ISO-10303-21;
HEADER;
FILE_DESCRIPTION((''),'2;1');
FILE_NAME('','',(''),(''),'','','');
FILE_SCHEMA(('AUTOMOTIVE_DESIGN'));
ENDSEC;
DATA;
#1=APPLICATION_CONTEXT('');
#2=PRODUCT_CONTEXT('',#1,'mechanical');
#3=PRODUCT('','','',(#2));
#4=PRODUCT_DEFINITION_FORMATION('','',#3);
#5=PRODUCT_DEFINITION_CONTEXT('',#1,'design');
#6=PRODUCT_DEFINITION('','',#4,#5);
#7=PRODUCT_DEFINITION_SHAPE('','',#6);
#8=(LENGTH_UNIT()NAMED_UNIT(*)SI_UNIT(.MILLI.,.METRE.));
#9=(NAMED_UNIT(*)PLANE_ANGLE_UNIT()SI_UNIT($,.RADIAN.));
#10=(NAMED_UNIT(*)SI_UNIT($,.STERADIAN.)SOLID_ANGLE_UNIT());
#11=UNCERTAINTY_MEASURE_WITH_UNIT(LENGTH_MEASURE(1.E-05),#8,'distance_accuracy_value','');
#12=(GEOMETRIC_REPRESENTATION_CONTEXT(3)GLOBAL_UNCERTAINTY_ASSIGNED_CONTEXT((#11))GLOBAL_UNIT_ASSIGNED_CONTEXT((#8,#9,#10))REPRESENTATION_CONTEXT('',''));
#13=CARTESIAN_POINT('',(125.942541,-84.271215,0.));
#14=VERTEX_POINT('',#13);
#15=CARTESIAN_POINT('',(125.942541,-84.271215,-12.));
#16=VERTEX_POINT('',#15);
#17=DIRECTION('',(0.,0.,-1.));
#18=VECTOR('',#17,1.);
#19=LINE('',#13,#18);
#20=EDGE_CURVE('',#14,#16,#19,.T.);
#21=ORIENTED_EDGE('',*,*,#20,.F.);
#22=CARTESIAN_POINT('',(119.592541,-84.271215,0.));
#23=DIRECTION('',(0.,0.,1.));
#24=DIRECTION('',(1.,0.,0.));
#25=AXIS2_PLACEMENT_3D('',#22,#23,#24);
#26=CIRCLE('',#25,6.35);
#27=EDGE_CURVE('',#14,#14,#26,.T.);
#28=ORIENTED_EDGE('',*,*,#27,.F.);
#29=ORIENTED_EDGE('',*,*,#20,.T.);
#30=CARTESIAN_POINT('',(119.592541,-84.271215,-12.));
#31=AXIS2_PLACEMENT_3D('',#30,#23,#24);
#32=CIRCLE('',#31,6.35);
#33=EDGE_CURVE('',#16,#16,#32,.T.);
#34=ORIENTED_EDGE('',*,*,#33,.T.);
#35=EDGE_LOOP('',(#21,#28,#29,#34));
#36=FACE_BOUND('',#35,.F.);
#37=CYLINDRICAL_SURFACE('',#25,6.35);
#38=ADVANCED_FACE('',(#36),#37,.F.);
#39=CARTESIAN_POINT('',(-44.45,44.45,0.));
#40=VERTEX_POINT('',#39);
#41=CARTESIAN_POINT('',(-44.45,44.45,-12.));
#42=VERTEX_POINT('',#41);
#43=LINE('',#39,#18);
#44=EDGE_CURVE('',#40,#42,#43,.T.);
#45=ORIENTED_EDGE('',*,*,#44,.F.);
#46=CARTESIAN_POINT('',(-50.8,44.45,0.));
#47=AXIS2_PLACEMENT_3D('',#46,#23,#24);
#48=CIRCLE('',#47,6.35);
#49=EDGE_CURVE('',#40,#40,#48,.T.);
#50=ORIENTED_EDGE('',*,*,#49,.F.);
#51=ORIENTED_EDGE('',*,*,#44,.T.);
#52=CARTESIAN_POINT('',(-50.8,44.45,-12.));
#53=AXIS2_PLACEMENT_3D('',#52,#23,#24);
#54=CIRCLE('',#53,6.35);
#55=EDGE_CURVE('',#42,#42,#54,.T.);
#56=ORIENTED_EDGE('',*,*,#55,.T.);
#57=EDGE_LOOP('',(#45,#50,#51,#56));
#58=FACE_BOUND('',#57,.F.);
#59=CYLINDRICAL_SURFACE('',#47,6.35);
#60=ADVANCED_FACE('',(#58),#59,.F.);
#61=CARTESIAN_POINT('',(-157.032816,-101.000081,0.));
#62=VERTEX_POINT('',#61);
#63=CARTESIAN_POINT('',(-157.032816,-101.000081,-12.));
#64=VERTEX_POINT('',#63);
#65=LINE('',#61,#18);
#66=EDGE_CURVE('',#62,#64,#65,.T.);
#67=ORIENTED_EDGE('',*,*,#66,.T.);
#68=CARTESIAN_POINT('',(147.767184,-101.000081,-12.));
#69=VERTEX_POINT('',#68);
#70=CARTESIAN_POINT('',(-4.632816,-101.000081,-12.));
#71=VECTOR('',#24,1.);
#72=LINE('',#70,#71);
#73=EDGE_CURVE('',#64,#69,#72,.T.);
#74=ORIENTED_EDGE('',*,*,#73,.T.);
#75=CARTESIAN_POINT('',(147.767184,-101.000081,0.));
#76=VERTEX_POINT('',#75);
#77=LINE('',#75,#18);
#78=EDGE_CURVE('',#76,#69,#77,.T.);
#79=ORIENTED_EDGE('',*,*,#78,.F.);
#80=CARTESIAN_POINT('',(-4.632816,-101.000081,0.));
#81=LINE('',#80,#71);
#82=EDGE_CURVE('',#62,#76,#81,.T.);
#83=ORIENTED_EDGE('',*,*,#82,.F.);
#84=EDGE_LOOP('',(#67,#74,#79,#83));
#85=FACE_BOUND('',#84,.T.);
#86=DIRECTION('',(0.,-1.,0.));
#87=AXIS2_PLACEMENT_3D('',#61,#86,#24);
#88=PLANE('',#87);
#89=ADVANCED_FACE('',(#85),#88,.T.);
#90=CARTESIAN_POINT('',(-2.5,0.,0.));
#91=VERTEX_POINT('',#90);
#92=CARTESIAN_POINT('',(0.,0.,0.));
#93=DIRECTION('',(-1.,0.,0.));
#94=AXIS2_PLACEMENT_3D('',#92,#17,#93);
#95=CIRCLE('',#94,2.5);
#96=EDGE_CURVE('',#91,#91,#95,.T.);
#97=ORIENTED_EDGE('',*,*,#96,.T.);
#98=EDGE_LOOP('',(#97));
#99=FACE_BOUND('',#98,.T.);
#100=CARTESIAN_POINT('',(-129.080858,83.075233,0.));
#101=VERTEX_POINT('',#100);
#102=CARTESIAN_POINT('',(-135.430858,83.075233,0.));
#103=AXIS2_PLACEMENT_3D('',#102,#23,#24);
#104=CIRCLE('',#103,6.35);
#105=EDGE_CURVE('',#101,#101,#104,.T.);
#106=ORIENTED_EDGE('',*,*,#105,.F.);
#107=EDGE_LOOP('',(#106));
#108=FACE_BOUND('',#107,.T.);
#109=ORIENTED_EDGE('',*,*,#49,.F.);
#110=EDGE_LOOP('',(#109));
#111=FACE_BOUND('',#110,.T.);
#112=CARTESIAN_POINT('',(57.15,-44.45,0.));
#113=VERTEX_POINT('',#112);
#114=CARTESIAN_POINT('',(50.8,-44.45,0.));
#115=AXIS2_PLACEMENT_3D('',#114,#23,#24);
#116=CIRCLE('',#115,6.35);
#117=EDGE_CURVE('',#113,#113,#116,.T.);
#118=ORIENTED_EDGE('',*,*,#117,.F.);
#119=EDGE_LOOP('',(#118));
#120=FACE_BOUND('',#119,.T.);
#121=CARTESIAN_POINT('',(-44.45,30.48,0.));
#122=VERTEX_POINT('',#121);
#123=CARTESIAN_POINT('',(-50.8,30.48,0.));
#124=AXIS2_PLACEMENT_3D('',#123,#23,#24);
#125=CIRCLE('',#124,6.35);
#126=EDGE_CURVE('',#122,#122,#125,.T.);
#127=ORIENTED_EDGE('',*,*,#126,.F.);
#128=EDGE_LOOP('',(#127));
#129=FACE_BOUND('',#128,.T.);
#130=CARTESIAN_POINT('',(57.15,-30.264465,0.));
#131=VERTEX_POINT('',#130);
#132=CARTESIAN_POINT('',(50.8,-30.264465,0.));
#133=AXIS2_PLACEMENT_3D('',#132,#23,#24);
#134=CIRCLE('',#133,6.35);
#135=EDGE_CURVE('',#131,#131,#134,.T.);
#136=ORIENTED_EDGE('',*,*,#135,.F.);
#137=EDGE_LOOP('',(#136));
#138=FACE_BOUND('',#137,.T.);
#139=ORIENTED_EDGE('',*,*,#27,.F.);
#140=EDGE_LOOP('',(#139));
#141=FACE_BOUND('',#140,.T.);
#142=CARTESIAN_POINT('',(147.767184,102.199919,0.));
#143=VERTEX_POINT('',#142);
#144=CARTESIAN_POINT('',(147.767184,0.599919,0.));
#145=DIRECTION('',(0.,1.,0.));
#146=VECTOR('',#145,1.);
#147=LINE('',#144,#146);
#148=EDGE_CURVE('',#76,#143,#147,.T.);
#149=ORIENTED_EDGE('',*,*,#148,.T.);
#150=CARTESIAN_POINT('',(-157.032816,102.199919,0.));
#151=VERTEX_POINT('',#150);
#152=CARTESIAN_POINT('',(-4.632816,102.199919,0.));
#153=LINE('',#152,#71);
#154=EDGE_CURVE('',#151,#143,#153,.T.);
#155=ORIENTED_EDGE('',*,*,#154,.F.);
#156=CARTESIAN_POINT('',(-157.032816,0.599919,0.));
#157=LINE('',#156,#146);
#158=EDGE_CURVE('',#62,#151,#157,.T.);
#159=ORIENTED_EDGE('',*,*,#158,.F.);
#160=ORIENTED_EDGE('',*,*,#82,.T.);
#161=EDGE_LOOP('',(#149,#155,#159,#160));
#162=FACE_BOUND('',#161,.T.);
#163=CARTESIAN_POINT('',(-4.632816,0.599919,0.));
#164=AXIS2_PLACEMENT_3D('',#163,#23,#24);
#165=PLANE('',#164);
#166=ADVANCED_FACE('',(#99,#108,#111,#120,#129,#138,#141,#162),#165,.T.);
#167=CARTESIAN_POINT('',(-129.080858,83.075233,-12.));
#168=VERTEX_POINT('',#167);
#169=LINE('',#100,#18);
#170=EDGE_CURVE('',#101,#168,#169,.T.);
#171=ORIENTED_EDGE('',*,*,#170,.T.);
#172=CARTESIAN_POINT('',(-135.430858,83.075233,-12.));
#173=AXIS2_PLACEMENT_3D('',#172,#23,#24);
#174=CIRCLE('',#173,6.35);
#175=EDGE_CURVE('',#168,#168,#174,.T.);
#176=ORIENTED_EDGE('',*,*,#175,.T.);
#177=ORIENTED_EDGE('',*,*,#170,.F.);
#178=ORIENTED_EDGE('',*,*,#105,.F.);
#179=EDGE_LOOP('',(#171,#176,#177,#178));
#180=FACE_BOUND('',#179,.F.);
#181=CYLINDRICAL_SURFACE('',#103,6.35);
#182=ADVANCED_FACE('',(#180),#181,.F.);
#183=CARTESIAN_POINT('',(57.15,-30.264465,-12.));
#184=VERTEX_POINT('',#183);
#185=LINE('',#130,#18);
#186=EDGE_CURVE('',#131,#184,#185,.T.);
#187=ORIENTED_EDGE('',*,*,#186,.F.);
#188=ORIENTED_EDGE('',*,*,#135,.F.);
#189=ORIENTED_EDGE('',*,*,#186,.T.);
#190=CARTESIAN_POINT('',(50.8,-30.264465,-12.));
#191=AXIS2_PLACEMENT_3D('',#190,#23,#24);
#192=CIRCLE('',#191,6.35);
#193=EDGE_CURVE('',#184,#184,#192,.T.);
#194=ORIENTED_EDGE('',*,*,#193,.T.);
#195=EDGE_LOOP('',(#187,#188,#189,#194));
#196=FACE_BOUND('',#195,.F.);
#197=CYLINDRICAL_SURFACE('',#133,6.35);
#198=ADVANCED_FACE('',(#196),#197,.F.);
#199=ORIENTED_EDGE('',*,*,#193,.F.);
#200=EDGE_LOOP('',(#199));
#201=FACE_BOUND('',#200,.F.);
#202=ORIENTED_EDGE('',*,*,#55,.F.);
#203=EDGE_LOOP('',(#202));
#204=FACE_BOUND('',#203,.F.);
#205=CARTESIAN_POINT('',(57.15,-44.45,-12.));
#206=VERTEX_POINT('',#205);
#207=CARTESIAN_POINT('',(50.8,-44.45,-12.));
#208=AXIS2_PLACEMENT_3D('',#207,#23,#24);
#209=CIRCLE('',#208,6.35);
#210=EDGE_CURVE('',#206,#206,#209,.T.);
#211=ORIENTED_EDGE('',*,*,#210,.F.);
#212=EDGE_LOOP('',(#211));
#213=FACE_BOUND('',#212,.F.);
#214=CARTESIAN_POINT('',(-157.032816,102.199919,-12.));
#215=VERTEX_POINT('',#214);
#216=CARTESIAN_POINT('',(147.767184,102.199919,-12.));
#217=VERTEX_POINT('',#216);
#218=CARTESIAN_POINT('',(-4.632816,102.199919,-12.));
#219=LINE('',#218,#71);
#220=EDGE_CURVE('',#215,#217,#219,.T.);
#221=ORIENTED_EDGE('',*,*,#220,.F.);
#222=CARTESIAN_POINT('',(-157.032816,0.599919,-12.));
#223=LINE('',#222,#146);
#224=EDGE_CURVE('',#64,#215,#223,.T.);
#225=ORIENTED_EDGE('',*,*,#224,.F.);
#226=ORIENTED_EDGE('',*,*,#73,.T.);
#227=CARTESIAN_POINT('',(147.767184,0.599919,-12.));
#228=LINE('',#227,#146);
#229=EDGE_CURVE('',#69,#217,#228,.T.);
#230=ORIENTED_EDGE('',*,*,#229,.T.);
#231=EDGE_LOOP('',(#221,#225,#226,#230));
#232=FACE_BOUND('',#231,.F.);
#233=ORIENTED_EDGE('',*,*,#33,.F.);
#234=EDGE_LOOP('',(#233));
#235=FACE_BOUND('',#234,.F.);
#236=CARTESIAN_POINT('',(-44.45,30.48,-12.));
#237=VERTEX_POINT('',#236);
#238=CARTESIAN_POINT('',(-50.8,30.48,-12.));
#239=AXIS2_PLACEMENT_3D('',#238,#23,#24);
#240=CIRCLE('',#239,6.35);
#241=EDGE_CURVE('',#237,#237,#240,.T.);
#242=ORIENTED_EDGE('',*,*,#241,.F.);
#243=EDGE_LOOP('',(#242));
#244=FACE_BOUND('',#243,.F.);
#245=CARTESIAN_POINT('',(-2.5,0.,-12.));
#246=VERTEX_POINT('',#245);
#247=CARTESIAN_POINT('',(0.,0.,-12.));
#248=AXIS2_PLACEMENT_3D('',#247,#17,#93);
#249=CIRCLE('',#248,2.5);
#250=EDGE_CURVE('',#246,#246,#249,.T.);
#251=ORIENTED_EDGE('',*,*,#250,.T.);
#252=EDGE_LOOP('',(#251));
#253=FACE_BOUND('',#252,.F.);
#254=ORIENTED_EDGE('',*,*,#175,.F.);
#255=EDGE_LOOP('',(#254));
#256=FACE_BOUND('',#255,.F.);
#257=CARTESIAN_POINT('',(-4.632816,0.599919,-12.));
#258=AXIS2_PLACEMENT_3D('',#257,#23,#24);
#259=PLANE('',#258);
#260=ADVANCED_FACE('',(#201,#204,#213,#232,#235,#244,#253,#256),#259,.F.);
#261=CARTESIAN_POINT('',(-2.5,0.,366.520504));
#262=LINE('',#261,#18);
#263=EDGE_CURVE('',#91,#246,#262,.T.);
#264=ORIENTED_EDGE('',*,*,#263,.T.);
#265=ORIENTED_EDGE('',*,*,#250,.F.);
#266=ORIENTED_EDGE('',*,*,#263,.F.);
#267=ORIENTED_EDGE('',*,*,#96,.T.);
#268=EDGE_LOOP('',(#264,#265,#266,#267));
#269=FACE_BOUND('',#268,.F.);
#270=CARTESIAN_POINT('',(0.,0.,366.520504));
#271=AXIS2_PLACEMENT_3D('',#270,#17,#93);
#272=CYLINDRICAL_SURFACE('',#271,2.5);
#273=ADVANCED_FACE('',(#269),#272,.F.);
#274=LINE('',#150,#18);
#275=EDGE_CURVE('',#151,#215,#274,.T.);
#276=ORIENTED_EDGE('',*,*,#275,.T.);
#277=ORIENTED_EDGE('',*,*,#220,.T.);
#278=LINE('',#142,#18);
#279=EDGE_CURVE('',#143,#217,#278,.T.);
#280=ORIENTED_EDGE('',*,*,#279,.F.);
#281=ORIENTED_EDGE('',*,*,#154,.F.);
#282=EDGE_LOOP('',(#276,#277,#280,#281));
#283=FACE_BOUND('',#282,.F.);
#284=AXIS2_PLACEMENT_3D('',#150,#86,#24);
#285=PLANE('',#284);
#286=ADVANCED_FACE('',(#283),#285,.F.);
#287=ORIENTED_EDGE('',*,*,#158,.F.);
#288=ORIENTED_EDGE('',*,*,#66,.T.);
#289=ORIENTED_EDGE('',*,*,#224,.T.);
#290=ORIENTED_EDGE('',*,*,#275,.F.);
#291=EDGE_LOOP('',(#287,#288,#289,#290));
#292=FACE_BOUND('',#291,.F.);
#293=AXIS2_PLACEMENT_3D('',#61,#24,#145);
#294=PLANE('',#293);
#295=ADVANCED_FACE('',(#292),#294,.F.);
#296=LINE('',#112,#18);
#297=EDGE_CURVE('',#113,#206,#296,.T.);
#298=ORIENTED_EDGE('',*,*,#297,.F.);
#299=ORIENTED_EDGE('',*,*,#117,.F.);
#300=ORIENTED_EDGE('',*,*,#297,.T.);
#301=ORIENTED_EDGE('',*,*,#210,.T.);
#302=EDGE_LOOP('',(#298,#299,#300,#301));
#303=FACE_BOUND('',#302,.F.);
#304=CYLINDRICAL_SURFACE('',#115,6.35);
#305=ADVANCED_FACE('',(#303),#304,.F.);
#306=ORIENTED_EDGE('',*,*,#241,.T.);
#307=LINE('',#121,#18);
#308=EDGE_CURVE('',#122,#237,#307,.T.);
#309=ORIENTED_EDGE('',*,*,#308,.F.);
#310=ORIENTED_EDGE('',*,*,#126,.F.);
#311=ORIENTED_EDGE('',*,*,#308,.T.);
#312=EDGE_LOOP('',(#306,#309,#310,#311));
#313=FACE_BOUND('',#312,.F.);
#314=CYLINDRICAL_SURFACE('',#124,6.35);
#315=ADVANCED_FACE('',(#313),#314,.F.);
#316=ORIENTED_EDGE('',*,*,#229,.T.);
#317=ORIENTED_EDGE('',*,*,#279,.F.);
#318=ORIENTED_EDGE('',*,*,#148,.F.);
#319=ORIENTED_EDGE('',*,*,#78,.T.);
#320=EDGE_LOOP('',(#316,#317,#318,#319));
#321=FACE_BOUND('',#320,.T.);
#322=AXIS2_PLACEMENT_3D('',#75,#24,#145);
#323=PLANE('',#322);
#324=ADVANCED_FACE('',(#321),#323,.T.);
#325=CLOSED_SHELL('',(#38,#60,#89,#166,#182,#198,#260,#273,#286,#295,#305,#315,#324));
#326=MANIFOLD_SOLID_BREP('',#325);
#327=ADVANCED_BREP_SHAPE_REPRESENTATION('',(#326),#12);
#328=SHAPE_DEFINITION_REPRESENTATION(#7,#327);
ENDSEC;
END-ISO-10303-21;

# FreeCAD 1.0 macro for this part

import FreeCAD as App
import Part
import Sketcher

V = App.Vector
Q = App.Units.Quantity

doc = App.newDocument("Part")
body = doc.addObject("PartDesign::Body", "Body")

# Sketch on XY plane
sketch1 = doc.addObject("Sketcher::SketchObject", "Sketch")
body.addObject(sketch1)
sketch1.AttachmentSupport = (doc.XY_Plane, [""])
sketch1.MapMode = "FlatFace"
sketch1.addGeometry(Part.LineSegment(V(-157, 102, 0), V(-157, -101, 0)), False)
sketch1.addGeometry(Part.LineSegment(V(-157, -101, 0), V(148, -101, 0)), False)
sketch1.addGeometry(Part.LineSegment(V(148, -101, 0), V(148, 102, 0)), False)
sketch1.addGeometry(Part.LineSegment(V(148, 102, 0), V(-157, 102, 0)), False)
sketch1.addGeometry(Part.Circle(V(120, -84, 0), V(0, 0, 1), 6), False)
sketch1.addGeometry(Part.Circle(V(51, -44, 0), V(0, 0, 1), 6), False)
sketch1.addGeometry(Part.Circle(V(51, -30, 0), V(0, 0, 1), 6), False)
sketch1.addGeometry(Part.Circle(V(-51, 30, 0), V(0, 0, 1), 6), False)
sketch1.addGeometry(Part.Circle(V(-135, 83, 0), V(0, 0, 1), 6), False)
sketch1.addGeometry(Part.Circle(V(-51, 44, 0), V(0, 0, 1), 6), False)
sketch1.addConstraint(Sketcher.Constraint("Coincident", 0, 2, 1, 1))
sketch1.addConstraint(Sketcher.Constraint("Coincident", 1, 2, 2, 1))
sketch1.addConstraint(Sketcher.Constraint("Coincident", 2, 2, 3, 1))
sketch1.addConstraint(Sketcher.Constraint("Coincident", 3, 2, 0, 1))
sketch1.addConstraint(Sketcher.Constraint("Vertical", 0))
sketch1.addConstraint(Sketcher.Constraint("Horizontal", 1))
sketch1.addConstraint(Sketcher.Constraint("Vertical", 2))
sketch1.addConstraint(Sketcher.Constraint("Horizontal", 3))
sketch1.addConstraint(Sketcher.Constraint("Equal", 4, 5))
sketch1.addConstraint(Sketcher.Constraint("Equal", 5, 6))
sketch1.addConstraint(Sketcher.Constraint("Equal", 6, 7))
sketch1.addConstraint(Sketcher.Constraint("Equal", 7, 8))
sketch1.addConstraint(Sketcher.Constraint("Equal", 8, 9))
sketch1.addConstraint(Sketcher.Constraint("Symmetric", 5, 3, 9, 3, -1, 1))
sketch1.addConstraint(Sketcher.Constraint("Vertical", 5, 3, 6, 3))
sketch1.addConstraint(Sketcher.Constraint("Vertical", 7, 3, 9, 3))
sketch1.addConstraint(Sketcher.Constraint("Diameter", 4, Q("0.5 in")))
sketch1.addConstraint(Sketcher.Constraint("DistanceX", 1, 1, 1, 2, Q("12 in")))
sketch1.addConstraint(Sketcher.Constraint("DistanceY", 0, 2, 0, 1, Q("8 in")))
sketch1.addConstraint(Sketcher.Constraint("DistanceX", -1, 1, 5, 3, Q("2 in")))
sketch1.addConstraint(Sketcher.Constraint("DistanceY", -1, 1, 7, 3, Q("1.2 in")))
sketch1.addConstraint(Sketcher.Constraint("DistanceY", 5, 3, 9, 3, Q("3.5 in")))
sketch1.addConstraint(Sketcher.Constraint("DistanceY", 6, 3, 8, 3, Q("113.339698 mm")))
sketch1.addConstraint(Sketcher.Constraint("DistanceX", 8, 3, 4, 3, Q("255.023399 mm")))
sketch1.addConstraint(Sketcher.Constraint("DistanceX", -1, 1, 4, 3, Q("119.592541 mm")))
sketch1.addConstraint(Sketcher.Constraint("DistanceY", 0, 2, -1, 1, Q("101.000081 mm")))
sketch1.addConstraint(Sketcher.Constraint("DistanceY", 4, 3, 6, 3, Q("54.00675 mm")))
sketch1.addConstraint(Sketcher.Constraint("DistanceY", 4, 3, -1, 1, Q("84.271215 mm")))
sketch1.addConstraint(Sketcher.Constraint("DistanceX", 0, 2, -1, 1, Q("157.032816 mm")))
pad1 = doc.addObject("PartDesign::Pad", "Pad")
body.addObject(pad1)
pad1.Profile = sketch1
pad1.Length = 12
pad1.Reversed = True

# Sketch on XY plane
sketch2 = doc.addObject("Sketcher::SketchObject", "Sketch001")
body.addObject(sketch2)
sketch2.AttachmentSupport = (doc.XY_Plane, [""])
sketch2.MapMode = "FlatFace"
sketch2.addGeometry(Part.Circle(V(0, 0, 0), V(0, 0, 1), 2.5), False)
sketch2.addConstraint(Sketcher.Constraint("Coincident", 0, 3, -1, 1))
sketch2.addConstraint(Sketcher.Constraint("Diameter", 0, Q("5 mm")))
doc.recompute()
hole = doc.addObject("PartDesign::Hole", "Hole")
body.addObject(hole)
hole.Profile = sketch2
hole.ThreadType = "None"
hole.Diameter = 5
hole.DepthType = "ThroughAll"

doc.recompute()
